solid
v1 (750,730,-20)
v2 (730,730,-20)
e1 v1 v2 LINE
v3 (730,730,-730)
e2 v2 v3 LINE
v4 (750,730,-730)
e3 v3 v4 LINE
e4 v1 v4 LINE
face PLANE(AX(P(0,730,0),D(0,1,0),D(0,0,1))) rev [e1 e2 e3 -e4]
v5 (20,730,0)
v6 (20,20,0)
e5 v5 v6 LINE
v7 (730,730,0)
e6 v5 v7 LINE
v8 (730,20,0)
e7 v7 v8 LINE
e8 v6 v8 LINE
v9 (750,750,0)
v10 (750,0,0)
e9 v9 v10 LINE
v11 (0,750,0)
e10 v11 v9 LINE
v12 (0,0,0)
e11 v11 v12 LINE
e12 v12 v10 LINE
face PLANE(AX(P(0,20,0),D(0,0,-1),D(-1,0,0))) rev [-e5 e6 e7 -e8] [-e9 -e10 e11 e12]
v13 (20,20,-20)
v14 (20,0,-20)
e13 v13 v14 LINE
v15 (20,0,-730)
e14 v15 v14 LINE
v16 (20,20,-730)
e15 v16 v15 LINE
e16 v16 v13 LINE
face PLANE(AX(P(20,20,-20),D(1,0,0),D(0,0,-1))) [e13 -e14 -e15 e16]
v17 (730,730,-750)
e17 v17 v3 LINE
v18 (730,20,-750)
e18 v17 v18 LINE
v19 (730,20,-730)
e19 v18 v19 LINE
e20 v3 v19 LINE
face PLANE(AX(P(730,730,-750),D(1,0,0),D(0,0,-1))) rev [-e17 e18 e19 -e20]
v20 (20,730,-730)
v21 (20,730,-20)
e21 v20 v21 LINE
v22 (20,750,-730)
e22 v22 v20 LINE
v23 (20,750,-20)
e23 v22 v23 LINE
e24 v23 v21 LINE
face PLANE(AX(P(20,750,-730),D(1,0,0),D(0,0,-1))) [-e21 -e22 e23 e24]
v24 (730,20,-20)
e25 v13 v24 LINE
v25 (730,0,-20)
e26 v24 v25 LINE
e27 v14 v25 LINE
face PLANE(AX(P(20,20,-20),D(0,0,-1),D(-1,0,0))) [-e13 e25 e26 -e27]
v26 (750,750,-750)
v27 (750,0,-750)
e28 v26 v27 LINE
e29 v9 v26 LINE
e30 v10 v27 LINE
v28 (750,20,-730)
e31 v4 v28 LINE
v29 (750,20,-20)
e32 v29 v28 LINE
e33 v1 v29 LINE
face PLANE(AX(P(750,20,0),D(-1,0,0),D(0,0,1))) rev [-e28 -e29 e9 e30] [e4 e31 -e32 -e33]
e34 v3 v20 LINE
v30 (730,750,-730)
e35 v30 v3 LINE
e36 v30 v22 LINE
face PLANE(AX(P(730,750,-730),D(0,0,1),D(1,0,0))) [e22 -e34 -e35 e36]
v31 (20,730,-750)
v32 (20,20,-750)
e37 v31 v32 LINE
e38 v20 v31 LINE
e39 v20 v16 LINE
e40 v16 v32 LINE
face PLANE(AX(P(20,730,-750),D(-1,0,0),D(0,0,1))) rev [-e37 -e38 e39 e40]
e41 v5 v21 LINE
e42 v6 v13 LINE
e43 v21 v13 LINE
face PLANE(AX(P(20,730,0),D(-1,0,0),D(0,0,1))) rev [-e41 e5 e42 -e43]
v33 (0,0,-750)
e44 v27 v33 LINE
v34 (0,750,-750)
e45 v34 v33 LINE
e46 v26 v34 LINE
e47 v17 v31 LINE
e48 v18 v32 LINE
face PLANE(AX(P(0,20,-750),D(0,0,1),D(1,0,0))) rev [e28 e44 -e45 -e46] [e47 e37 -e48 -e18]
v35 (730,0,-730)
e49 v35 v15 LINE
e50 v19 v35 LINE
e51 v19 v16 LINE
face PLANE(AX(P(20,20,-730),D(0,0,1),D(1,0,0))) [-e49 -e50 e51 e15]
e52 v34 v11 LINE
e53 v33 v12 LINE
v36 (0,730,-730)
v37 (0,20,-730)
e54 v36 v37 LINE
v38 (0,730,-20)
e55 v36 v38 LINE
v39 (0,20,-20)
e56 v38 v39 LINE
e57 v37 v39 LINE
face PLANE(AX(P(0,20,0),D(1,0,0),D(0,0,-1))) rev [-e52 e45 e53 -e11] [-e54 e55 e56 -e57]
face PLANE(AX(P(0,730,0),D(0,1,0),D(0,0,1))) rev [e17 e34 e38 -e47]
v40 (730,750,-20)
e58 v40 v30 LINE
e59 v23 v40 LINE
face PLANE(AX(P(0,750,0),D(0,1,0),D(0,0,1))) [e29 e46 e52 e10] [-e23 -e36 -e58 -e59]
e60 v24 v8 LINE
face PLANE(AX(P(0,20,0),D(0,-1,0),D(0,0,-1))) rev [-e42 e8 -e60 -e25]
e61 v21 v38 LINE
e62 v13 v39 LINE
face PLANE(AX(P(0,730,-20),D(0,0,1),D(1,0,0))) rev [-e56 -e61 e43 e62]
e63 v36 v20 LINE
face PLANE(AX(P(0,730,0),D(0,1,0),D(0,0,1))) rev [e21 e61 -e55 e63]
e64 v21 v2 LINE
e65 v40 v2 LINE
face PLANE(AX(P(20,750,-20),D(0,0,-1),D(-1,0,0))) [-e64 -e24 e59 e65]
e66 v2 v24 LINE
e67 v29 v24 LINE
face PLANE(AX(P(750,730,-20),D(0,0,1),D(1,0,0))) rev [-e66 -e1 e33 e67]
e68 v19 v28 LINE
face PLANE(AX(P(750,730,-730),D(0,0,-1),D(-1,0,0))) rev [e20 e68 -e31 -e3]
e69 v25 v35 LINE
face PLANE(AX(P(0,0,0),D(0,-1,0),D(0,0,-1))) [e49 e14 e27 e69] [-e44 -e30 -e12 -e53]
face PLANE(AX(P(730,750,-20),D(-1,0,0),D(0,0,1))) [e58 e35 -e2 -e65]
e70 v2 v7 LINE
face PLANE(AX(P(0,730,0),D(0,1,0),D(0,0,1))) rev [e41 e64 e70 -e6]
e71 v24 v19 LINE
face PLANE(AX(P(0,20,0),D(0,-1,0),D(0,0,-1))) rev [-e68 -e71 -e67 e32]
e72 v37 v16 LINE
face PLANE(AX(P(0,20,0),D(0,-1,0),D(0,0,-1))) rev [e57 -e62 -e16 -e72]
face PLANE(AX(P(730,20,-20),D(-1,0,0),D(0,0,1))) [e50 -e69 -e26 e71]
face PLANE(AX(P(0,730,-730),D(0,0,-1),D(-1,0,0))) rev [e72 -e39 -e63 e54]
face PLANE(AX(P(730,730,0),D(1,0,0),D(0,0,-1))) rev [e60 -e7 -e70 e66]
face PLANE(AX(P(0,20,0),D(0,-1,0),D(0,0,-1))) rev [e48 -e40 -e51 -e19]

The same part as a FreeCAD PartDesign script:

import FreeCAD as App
import Part
import Sketcher
from FreeCAD import Vector


def add_polygon(sketch, points):
    """Adds a closed chain of lines whose ends are joined by coincident constraints."""
    first, n = sketch.GeometryCount, len(points)
    for a, b in zip(points, points[1:] + points[:1]):
        sketch.addGeometry(Part.LineSegment(App.Vector(*a, 0), App.Vector(*b, 0)), False)
    for i in range(n):
        sketch.addConstraint(Sketcher.Constraint("Coincident", first + i, 2, first + (i + 1) % n, 1))

doc = App.newDocument("Part")
body = doc.addObject("PartDesign::Body", "Body")

sketch1 = doc.addObject("Sketcher::SketchObject", "Sketch")
body.addObject(sketch1)
sketch1.AttachmentSupport = (doc.XZ_Plane, [""])
sketch1.MapMode = "FlatFace"
add_polygon(sketch1, [(0, -750), (0, 0), (750, 0), (750, -750)])
add_polygon(sketch1, [(730, -20), (20, -20), (20, -730), (730, -730)])
sketch1.addConstraint(Sketcher.Constraint("Vertical", 0))
sketch1.addConstraint(Sketcher.Constraint("Horizontal", 1))
sketch1.addConstraint(Sketcher.Constraint("Vertical", 2))
sketch1.addConstraint(Sketcher.Constraint("Horizontal", 3))
sketch1.addConstraint(Sketcher.Constraint("Horizontal", 4))
sketch1.addConstraint(Sketcher.Constraint("Vertical", 5))
sketch1.addConstraint(Sketcher.Constraint("Horizontal", 6))
sketch1.addConstraint(Sketcher.Constraint("Vertical", 7))
sketch1.addConstraint(Sketcher.Constraint("Coincident", 0, 2, -1, 1))
sketch1.addConstraint(Sketcher.Constraint("Equal", 3, 0))
sketch1.addConstraint(Sketcher.Constraint("Equal", 6, 5))
sketch1.addConstraint(Sketcher.Constraint("DistanceX", 1, 1, 1, 2, 750.0))
sketch1.addConstraint(Sketcher.Constraint("DistanceX", 4, 2, 4, 1, 710.0))
sketch1.addConstraint(Sketcher.Constraint("DistanceX", -1, 1, 4, 2, 20.0))
sketch1.addConstraint(Sketcher.Constraint("DistanceY", 4, 2, -1, 1, 20.0))
pad1 = doc.addObject("PartDesign::Pad", "Pad")
body.addObject(pad1)
pad1.Profile = sketch1
pad1.Length = 20
pad1.Reversed = True

sketch2 = doc.addObject("Sketcher::SketchObject", "Sketch001")
body.addObject(sketch2)
sketch2.AttachmentSupport = (doc.XZ_Plane, [""])
sketch2.MapMode = "FlatFace"
sketch2.AttachmentOffset = App.Placement(Vector(0, 0, -20), App.Rotation())
add_polygon(sketch2, [(0, -750), (0, -730), (20, -730), (20, -750)])
add_polygon(sketch2, [(730, -750), (730, -730), (750, -730), (750, -750)])
add_polygon(sketch2, [(0, -20), (0, 0), (20, 0), (20, -20)])
add_polygon(sketch2, [(730, -20), (730, 0), (750, 0), (750, -20)])
sketch2.addConstraint(Sketcher.Constraint("Vertical", 0))
sketch2.addConstraint(Sketcher.Constraint("Horizontal", 1))
sketch2.addConstraint(Sketcher.Constraint("Vertical", 2))
sketch2.addConstraint(Sketcher.Constraint("Horizontal", 3))
sketch2.addConstraint(Sketcher.Constraint("Vertical", 4))
sketch2.addConstraint(Sketcher.Constraint("Horizontal", 5))
sketch2.addConstraint(Sketcher.Constraint("Vertical", 6))
sketch2.addConstraint(Sketcher.Constraint("Horizontal", 7))
sketch2.addConstraint(Sketcher.Constraint("Vertical", 8))
sketch2.addConstraint(Sketcher.Constraint("Horizontal", 9))
sketch2.addConstraint(Sketcher.Constraint("Vertical", 10))
sketch2.addConstraint(Sketcher.Constraint("Horizontal", 11))
sketch2.addConstraint(Sketcher.Constraint("Vertical", 12))
sketch2.addConstraint(Sketcher.Constraint("Horizontal", 13))
sketch2.addConstraint(Sketcher.Constraint("Vertical", 14))
sketch2.addConstraint(Sketcher.Constraint("Horizontal", 15))
sketch2.addConstraint(Sketcher.Constraint("Coincident", 8, 2, -1, 1))
sketch2.addConstraint(Sketcher.Constraint("PointOnObject", 0, 2, -2))
sketch2.addConstraint(Sketcher.Constraint("PointOnObject", 12, 2, -1))
sketch2.addConstraint(Sketcher.Constraint("Horizontal", 1, 2, 4, 2))
sketch2.addConstraint(Sketcher.Constraint("Horizontal", 3, 2, 6, 2))
sketch2.addConstraint(Sketcher.Constraint("Horizontal", 11, 2, 14, 2))
sketch2.addConstraint(Sketcher.Constraint("Vertical", 2, 2, 9, 2))
sketch2.addConstraint(Sketcher.Constraint("Vertical", 7, 2, 12, 2))
sketch2.addConstraint(Sketcher.Constraint("Vertical", 6, 2, 13, 2))
sketch2.addConstraint(Sketcher.Constraint("Equal", 3, 5))
sketch2.addConstraint(Sketcher.Constraint("Equal", 15, 0))
sketch2.addConstraint(Sketcher.Constraint("Equal", 6, 8))
sketch2.addConstraint(Sketcher.Constraint("DistanceX", 1, 1, 1, 2, 20.0))
sketch2.addConstraint(Sketcher.Constraint("DistanceY", 0, 2, -1, 1, 730.0))
sketch2.addConstraint(Sketcher.Constraint("DistanceX", -1, 1, 4, 2, 730.0))
pad2 = doc.addObject("PartDesign::Pad", "Pad001")
body.addObject(pad2)
pad2.Profile = sketch2
pad2.Length = 710
pad2.Reversed = True

sketch3 = doc.addObject("Sketcher::SketchObject", "Sketch002")
body.addObject(sketch3)
sketch3.AttachmentSupport = (doc.XZ_Plane, [""])
sketch3.MapMode = "FlatFace"
sketch3.AttachmentOffset = App.Placement(Vector(0, 0, -730), App.Rotation())
add_polygon(sketch3, [(0, -750), (0, 0), (750, 0), (750, -750)])
add_polygon(sketch3, [(730, -20), (20, -20), (20, -730), (730, -730)])
sketch3.addConstraint(Sketcher.Constraint("Vertical", 0))
sketch3.addConstraint(Sketcher.Constraint("Horizontal", 1))
sketch3.addConstraint(Sketcher.Constraint("Vertical", 2))
sketch3.addConstraint(Sketcher.Constraint("Horizontal", 3))
sketch3.addConstraint(Sketcher.Constraint("Horizontal", 4))
sketch3.addConstraint(Sketcher.Constraint("Vertical", 5))
sketch3.addConstraint(Sketcher.Constraint("Horizontal", 6))
sketch3.addConstraint(Sketcher.Constraint("Vertical", 7))
sketch3.addConstraint(Sketcher.Constraint("Coincident", 0, 2, -1, 1))
sketch3.addConstraint(Sketcher.Constraint("Equal", 3, 0))
sketch3.addConstraint(Sketcher.Constraint("Equal", 6, 5))
sketch3.addConstraint(Sketcher.Constraint("DistanceX", 1, 1, 1, 2, 750.0))
sketch3.addConstraint(Sketcher.Constraint("DistanceX", 4, 2, 4, 1, 710.0))
sketch3.addConstraint(Sketcher.Constraint("DistanceX", -1, 1, 4, 2, 20.0))
sketch3.addConstraint(Sketcher.Constraint("DistanceY", 4, 2, -1, 1, 20.0))
pad3 = doc.addObject("PartDesign::Pad", "Pad002")
body.addObject(pad3)
pad3.Profile = sketch3
pad3.Length = 20
pad3.Reversed = True

doc.recompute()
